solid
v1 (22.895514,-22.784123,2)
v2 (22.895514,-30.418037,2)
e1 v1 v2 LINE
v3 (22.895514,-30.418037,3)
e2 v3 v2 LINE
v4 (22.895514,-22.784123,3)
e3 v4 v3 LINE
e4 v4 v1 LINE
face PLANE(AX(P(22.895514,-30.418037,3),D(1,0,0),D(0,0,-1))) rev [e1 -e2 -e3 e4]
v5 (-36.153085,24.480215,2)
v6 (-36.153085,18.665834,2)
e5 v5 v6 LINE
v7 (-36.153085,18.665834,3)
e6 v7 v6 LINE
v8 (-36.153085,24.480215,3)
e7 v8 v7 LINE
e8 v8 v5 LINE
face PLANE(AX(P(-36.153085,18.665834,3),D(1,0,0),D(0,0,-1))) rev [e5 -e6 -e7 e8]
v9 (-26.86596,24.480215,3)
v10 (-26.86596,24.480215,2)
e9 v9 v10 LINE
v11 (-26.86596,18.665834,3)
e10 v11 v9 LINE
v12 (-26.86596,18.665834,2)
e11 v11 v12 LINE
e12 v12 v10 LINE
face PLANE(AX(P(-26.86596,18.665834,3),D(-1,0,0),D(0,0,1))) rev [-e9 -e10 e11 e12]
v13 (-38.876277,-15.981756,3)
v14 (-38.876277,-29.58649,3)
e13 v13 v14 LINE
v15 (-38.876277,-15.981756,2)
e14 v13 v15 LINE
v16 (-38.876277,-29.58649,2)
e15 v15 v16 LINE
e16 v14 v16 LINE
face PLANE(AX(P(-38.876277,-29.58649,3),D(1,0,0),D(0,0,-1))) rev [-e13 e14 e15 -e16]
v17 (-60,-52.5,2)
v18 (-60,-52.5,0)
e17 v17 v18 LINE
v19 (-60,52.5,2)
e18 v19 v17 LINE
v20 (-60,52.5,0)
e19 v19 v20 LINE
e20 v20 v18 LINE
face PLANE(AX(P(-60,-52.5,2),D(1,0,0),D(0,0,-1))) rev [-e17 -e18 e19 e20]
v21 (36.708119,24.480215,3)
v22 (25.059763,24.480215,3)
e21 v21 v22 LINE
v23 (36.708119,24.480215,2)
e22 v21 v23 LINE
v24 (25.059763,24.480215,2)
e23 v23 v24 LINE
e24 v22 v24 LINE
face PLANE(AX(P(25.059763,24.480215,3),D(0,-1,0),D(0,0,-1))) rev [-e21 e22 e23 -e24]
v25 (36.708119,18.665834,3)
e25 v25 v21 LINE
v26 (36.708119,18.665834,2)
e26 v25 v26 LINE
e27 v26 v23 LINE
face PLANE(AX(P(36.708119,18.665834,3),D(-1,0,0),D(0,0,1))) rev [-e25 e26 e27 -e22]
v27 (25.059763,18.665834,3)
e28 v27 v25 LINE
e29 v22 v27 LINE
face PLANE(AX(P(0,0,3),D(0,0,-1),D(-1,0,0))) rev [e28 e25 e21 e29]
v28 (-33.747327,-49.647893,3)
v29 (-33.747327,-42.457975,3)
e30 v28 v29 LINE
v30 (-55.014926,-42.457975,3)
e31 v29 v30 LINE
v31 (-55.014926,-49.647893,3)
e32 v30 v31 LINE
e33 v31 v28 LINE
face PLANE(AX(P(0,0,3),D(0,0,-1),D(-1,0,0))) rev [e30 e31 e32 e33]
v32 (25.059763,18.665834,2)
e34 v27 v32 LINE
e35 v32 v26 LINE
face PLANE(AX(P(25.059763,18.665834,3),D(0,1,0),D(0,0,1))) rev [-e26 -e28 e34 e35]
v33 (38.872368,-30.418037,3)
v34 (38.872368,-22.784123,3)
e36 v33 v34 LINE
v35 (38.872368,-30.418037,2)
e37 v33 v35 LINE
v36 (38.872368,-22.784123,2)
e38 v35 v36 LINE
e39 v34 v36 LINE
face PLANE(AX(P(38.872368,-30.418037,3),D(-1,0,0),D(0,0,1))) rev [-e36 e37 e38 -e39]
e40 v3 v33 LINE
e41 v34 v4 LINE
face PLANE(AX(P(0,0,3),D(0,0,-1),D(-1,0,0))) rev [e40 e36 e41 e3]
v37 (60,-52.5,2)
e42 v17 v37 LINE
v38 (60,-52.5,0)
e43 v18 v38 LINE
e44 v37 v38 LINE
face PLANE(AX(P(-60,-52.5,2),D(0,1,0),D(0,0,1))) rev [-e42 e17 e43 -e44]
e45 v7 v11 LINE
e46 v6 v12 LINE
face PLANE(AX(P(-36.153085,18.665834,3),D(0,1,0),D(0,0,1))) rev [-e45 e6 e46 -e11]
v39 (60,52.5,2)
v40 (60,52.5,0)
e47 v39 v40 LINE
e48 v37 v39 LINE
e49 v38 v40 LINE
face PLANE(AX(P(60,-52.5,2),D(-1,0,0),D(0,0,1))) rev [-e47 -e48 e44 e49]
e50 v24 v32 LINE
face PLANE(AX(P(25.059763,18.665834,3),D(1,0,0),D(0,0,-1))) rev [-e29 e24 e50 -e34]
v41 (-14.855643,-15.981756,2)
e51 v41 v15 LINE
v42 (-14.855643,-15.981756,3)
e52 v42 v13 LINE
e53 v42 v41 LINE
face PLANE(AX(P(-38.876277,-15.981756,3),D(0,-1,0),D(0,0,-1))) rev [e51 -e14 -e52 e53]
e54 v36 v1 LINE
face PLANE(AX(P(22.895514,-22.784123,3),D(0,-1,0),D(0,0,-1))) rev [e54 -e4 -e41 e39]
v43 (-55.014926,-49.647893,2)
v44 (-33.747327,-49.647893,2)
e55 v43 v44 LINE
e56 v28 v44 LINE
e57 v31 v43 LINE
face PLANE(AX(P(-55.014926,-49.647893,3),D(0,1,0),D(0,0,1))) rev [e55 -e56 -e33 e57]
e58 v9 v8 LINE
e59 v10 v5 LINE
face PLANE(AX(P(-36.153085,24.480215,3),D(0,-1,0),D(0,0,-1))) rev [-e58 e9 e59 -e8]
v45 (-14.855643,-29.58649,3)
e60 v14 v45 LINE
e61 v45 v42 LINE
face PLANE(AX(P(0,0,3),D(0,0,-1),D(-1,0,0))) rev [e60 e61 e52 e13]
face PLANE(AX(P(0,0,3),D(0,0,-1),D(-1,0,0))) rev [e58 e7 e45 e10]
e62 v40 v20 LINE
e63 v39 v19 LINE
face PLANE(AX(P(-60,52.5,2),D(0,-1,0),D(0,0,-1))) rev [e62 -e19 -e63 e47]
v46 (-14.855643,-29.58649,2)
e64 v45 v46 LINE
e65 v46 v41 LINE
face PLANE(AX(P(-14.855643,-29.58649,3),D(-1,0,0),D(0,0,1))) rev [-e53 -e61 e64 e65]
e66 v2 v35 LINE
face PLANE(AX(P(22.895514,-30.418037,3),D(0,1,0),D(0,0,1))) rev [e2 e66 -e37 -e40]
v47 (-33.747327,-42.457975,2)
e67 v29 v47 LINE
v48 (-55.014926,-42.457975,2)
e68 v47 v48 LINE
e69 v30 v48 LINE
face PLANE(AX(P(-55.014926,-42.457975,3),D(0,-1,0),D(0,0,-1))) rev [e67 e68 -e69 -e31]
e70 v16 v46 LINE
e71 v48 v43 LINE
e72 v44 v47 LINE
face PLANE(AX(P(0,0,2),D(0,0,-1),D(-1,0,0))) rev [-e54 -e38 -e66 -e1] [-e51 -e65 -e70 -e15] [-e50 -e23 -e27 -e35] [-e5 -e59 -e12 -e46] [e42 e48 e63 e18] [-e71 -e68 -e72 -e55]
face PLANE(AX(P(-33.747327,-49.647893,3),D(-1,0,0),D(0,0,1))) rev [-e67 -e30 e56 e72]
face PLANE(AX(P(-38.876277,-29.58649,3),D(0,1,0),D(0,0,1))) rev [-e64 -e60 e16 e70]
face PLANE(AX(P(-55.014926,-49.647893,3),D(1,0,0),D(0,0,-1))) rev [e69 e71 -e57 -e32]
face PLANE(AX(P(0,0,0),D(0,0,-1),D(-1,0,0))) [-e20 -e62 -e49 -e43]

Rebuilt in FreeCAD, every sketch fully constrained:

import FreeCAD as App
import Part
import Sketcher

V = App.Vector


def add_polygon(sketch, points):
    """Adds a closed chain of lines whose ends are joined by coincident constraints."""
    first, n = sketch.GeometryCount, len(points)
    for a, b in zip(points, points[1:] + points[:1]):
        sketch.addGeometry(Part.LineSegment(App.Vector(*a, 0), App.Vector(*b, 0)), False)
    for i in range(n):
        sketch.addConstraint(Sketcher.Constraint("Coincident", first + i, 2, first + (i + 1) % n, 1))

doc = App.newDocument("Part")
body = doc.addObject("PartDesign::Body", "Body")

# Sketch on XY plane
sketch1 = body.newObject("Sketcher::SketchObject", "Sketch")
sketch1.AttachmentSupport = (doc.getObject("XY_Plane"), [""])
sketch1.MapMode = "FlatFace"
add_polygon(sketch1, [(-60, 52), (-60, -52), (60, -52), (60, 52)])  # lines 0-3
sketch1.addConstraint(Sketcher.Constraint("Vertical", 0))
sketch1.addConstraint(Sketcher.Constraint("Horizontal", 1))
sketch1.addConstraint(Sketcher.Constraint("Vertical", 2))
sketch1.addConstraint(Sketcher.Constraint("Horizontal", 3))
sketch1.addConstraint(Sketcher.Constraint("Symmetric", 0, 2, 2, 2, -1, 1))
sketch1.addConstraint(Sketcher.Constraint("DistanceX", 1, 1, 1, 2, 120.0))
sketch1.addConstraint(Sketcher.Constraint("DistanceY", 0, 2, 0, 1, 105.0))
pad1 = body.newObject("PartDesign::Pad", "Pad")
pad1.Profile = sketch1
pad1.Length = 2

# Sketch on XY plane
sketch2 = body.newObject("Sketcher::SketchObject", "Sketch001")
sketch2.AttachmentSupport = (doc.getObject("XY_Plane"), [""])
sketch2.MapMode = "FlatFace"
sketch2.AttachmentOffset = App.Placement(V(0, 0, 2), App.Rotation())
add_polygon(sketch2, [(-39, -16), (-39, -30), (-15, -30), (-15, -16)])  # lines 0-3
add_polygon(sketch2, [(23, -23), (23, -30), (39, -30), (39, -23)])  # lines 4-7
add_polygon(sketch2, [(-36, 24), (-36, 19), (-27, 19), (-27, 24)])  # lines 8-11
add_polygon(sketch2, [(25, 24), (25, 19), (37, 19), (37, 24)])  # lines 12-15
add_polygon(sketch2, [(-55, -42), (-55, -50), (-34, -50), (-34, -42)])  # lines 16-19
sketch2.addConstraint(Sketcher.Constraint("Vertical", 0))
sketch2.addConstraint(Sketcher.Constraint("Horizontal", 1))
sketch2.addConstraint(Sketcher.Constraint("Vertical", 2))
sketch2.addConstraint(Sketcher.Constraint("Horizontal", 3))
sketch2.addConstraint(Sketcher.Constraint("Vertical", 4))
sketch2.addConstraint(Sketcher.Constraint("Horizontal", 5))
sketch2.addConstraint(Sketcher.Constraint("Vertical", 6))
sketch2.addConstraint(Sketcher.Constraint("Horizontal", 7))
sketch2.addConstraint(Sketcher.Constraint("Vertical", 8))
sketch2.addConstraint(Sketcher.Constraint("Horizontal", 9))
sketch2.addConstraint(Sketcher.Constraint("Vertical", 10))
sketch2.addConstraint(Sketcher.Constraint("Horizontal", 11))
sketch2.addConstraint(Sketcher.Constraint("Vertical", 12))
sketch2.addConstraint(Sketcher.Constraint("Horizontal", 13))
sketch2.addConstraint(Sketcher.Constraint("Vertical", 14))
sketch2.addConstraint(Sketcher.Constraint("Horizontal", 15))
sketch2.addConstraint(Sketcher.Constraint("Vertical", 16))
sketch2.addConstraint(Sketcher.Constraint("Horizontal", 17))
sketch2.addConstraint(Sketcher.Constraint("Vertical", 18))
sketch2.addConstraint(Sketcher.Constraint("Horizontal", 19))
sketch2.addConstraint(Sketcher.Constraint("Horizontal", 9, 2, 12, 2))
sketch2.addConstraint(Sketcher.Constraint("Horizontal", 11, 2, 14, 2))
sketch2.addConstraint(Sketcher.Constraint("DistanceX", 17, 1, 17, 2, 21.2676))
sketch2.addConstraint(Sketcher.Constraint("DistanceY", 8, 2, 8, 1, 5.81438))
sketch2.addConstraint(Sketcher.Constraint("DistanceX", 8, 2, 7, 2, 59.0486))
sketch2.addConstraint(Sketcher.Constraint("DistanceX", 1, 1, 1, 2, 24.020634))
sketch2.addConstraint(Sketcher.Constraint("DistanceX", 5, 1, 5, 2, 15.976854))
sketch2.addConstraint(Sketcher.Constraint("DistanceX", 9, 1, 9, 2, 9.287125))
sketch2.addConstraint(Sketcher.Constraint("DistanceX", 13, 1, 13, 2, 11.648356))
sketch2.addConstraint(Sketcher.Constraint("DistanceY", 0, 2, 0, 1, 13.604734))
sketch2.addConstraint(Sketcher.Constraint("DistanceY", 4, 2, 4, 1, 7.633914))
sketch2.addConstraint(Sketcher.Constraint("DistanceY", 16, 2, 16, 1, 7.189917))
sketch2.addConstraint(Sketcher.Constraint("DistanceY", 0, 2, -1, 1, 29.58649))
sketch2.addConstraint(Sketcher.Constraint("DistanceX", -1, 1, 5, 2, 38.872368))
sketch2.addConstraint(Sketcher.Constraint("DistanceX", -1, 1, 13, 2, 36.708119))
sketch2.addConstraint(Sketcher.Constraint("DistanceY", 4, 2, 2, 2, 14.436281))
sketch2.addConstraint(Sketcher.Constraint("DistanceX", 0, 2, 4, 2, 61.771791))
sketch2.addConstraint(Sketcher.Constraint("DistanceY", 3, 2, 8, 2, 34.647591))
sketch2.addConstraint(Sketcher.Constraint("DistanceX", 16, 2, 0, 2, 16.13865))
sketch2.addConstraint(Sketcher.Constraint("DistanceY", 18, 2, 3, 2, 26.476219))
pad2 = body.newObject("PartDesign::Pad", "Pad001")
pad2.Profile = sketch2
pad2.Length = 1

doc.recompute()
